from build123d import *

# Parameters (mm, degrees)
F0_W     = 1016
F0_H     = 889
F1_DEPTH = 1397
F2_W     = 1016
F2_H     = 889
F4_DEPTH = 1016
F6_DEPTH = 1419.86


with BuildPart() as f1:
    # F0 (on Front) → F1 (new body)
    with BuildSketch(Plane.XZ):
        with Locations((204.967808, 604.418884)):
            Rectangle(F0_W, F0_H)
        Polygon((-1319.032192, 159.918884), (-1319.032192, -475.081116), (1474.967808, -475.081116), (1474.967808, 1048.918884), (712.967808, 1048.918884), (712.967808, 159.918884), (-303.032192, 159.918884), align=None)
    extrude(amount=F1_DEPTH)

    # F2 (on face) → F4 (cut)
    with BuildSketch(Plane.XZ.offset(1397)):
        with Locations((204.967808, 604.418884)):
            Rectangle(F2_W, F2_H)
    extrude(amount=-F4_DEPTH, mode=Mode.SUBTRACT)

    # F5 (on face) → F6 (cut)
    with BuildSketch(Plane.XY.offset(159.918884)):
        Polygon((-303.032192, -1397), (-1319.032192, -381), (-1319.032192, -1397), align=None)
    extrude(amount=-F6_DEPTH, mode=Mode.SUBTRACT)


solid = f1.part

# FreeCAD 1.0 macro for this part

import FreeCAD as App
import Part
import Sketcher
Q = App.Units.Quantity

doc = App.newDocument("Part")
body = doc.addObject("PartDesign::Body", "Body")

# Sketch on XZ plane
sketch1 = body.newObject("Sketcher::SketchObject", "Sketch")
sketch1.AttachmentSupport = (doc.getObject("XZ_Plane"), [""])
sketch1.MapMode = "FlatFace"
sketch1.addGeometry(Part.LineSegment(App.Vector(-303, 1049, 0), App.Vector(-303, 160, 0)), False)
sketch1.addGeometry(Part.LineSegment(App.Vector(-303, 160, 0), App.Vector(-1319, 160, 0)), False)
sketch1.addGeometry(Part.LineSegment(App.Vector(-1319, 160, 0), App.Vector(-1319, -475, 0)), False)
sketch1.addGeometry(Part.LineSegment(App.Vector(-1319, -475, 0), App.Vector(1475, -475, 0)), False)
sketch1.addGeometry(Part.LineSegment(App.Vector(1475, -475, 0), App.Vector(1475, 1049, 0)), False)
sketch1.addGeometry(Part.LineSegment(App.Vector(1475, 1049, 0), App.Vector(-303, 1049, 0)), False)
sketch1.addConstraint(Sketcher.Constraint("Coincident", 0, 2, 1, 1))
sketch1.addConstraint(Sketcher.Constraint("Coincident", 1, 2, 2, 1))
sketch1.addConstraint(Sketcher.Constraint("Coincident", 2, 2, 3, 1))
sketch1.addConstraint(Sketcher.Constraint("Coincident", 3, 2, 4, 1))
sketch1.addConstraint(Sketcher.Constraint("Coincident", 4, 2, 5, 1))
sketch1.addConstraint(Sketcher.Constraint("Coincident", 5, 2, 0, 1))
sketch1.addConstraint(Sketcher.Constraint("Vertical", 0))
sketch1.addConstraint(Sketcher.Constraint("Horizontal", 1))
sketch1.addConstraint(Sketcher.Constraint("Vertical", 2))
sketch1.addConstraint(Sketcher.Constraint("Horizontal", 3))
sketch1.addConstraint(Sketcher.Constraint("Vertical", 4))
sketch1.addConstraint(Sketcher.Constraint("Horizontal", 5))
sketch1.addConstraint(Sketcher.Constraint("DistanceX", 1, 2, 1, 1, Q("40 in")))
sketch1.addConstraint(Sketcher.Constraint("DistanceX", 3, 1, 3, 2, Q("110 in")))
sketch1.addConstraint(Sketcher.Constraint("DistanceY", 0, 2, 0, 1, Q("35 in")))
sketch1.addConstraint(Sketcher.Constraint("DistanceY", 2, 2, 2, 1, Q("25 in")))
sketch1.addConstraint(Sketcher.Constraint("DistanceX", 0, 2, -1, 1, Q("303.032192 mm")))
sketch1.addConstraint(Sketcher.Constraint("DistanceY", -1, 1, 0, 2, Q("159.918884 mm")))
pad1 = body.newObject("PartDesign::Pad", "Pad")
pad1.Profile = sketch1
pad1.Length = Q("55 in")

# Sketch on XZ plane
sketch2 = body.newObject("Sketcher::SketchObject", "Sketch001")
sketch2.AttachmentSupport = (doc.getObject("XZ_Plane"), [""])
sketch2.MapMode = "FlatFace"
sketch2.AttachmentOffset = App.Placement(App.Vector(0, 0, 55 * 25.4), App.Rotation())
sketch2.addGeometry(Part.LineSegment(App.Vector(-303, 1049, 0), App.Vector(-303, 160, 0)), False)
sketch2.addGeometry(Part.LineSegment(App.Vector(-303, 160, 0), App.Vector(713, 160, 0)), False)
sketch2.addGeometry(Part.LineSegment(App.Vector(713, 160, 0), App.Vector(713, 1049, 0)), False)
sketch2.addGeometry(Part.LineSegment(App.Vector(713, 1049, 0), App.Vector(-303, 1049, 0)), False)
sketch2.addConstraint(Sketcher.Constraint("Coincident", 0, 2, 1, 1))
sketch2.addConstraint(Sketcher.Constraint("Coincident", 1, 2, 2, 1))
sketch2.addConstraint(Sketcher.Constraint("Coincident", 2, 2, 3, 1))
sketch2.addConstraint(Sketcher.Constraint("Coincident", 3, 2, 0, 1))
sketch2.addConstraint(Sketcher.Constraint("Vertical", 0))
sketch2.addConstraint(Sketcher.Constraint("Horizontal", 1))
sketch2.addConstraint(Sketcher.Constraint("Vertical", 2))
sketch2.addConstraint(Sketcher.Constraint("Horizontal", 3))
sketch2.addConstraint(Sketcher.Constraint("DistanceX", 1, 1, 1, 2, Q("40 in")))
sketch2.addConstraint(Sketcher.Constraint("DistanceY", 0, 2, 0, 1, Q("35 in")))
sketch2.addConstraint(Sketcher.Constraint("DistanceX", 0, 2, -1, 1, Q("303.032192 mm")))
sketch2.addConstraint(Sketcher.Constraint("DistanceY", -1, 1, 0, 2, Q("159.918884 mm")))
pocket1 = body.newObject("PartDesign::Pocket", "Pocket")
pocket1.Profile = sketch2
pocket1.Length = Q("40 in")

# Sketch on XY plane
sketch3 = body.newObject("Sketcher::SketchObject", "Sketch002")
sketch3.AttachmentSupport = (doc.getObject("XY_Plane"), [""])
sketch3.MapMode = "FlatFace"
sketch3.AttachmentOffset = App.Placement(App.Vector(0, 0, 159.918884), App.Rotation())
sketch3.addGeometry(Part.LineSegment(App.Vector(-303, -1397, 0), App.Vector(-1319, -381, 0)), False)
sketch3.addGeometry(Part.LineSegment(App.Vector(-1319, -381, 0), App.Vector(-1319, -1397, 0)), False)
sketch3.addGeometry(Part.LineSegment(App.Vector(-1319, -1397, 0), App.Vector(-303, -1397, 0)), False)
sketch3.addConstraint(Sketcher.Constraint("Coincident", 0, 2, 1, 1))
sketch3.addConstraint(Sketcher.Constraint("Coincident", 1, 2, 2, 1))
sketch3.addConstraint(Sketcher.Constraint("Coincident", 2, 2, 0, 1))
sketch3.addConstraint(Sketcher.Constraint("Vertical", 1))
sketch3.addConstraint(Sketcher.Constraint("Horizontal", 2))
sketch3.addConstraint(Sketcher.Constraint("Equal", 2, 1))
sketch3.addConstraint(Sketcher.Constraint("DistanceX", 2, 1, 2, 2, Q("40 in")))
sketch3.addConstraint(Sketcher.Constraint("DistanceY", 0, 2, -1, 1, Q("15 in")))
sketch3.addConstraint(Sketcher.Constraint("DistanceX", 0, 2, -1, 1, Q("1319.032192 mm")))
pocket2 = body.newObject("PartDesign::Pocket", "Pocket001")
pocket2.Profile = sketch3
pocket2.Length = Q("55.9 in")

doc.recompute()
